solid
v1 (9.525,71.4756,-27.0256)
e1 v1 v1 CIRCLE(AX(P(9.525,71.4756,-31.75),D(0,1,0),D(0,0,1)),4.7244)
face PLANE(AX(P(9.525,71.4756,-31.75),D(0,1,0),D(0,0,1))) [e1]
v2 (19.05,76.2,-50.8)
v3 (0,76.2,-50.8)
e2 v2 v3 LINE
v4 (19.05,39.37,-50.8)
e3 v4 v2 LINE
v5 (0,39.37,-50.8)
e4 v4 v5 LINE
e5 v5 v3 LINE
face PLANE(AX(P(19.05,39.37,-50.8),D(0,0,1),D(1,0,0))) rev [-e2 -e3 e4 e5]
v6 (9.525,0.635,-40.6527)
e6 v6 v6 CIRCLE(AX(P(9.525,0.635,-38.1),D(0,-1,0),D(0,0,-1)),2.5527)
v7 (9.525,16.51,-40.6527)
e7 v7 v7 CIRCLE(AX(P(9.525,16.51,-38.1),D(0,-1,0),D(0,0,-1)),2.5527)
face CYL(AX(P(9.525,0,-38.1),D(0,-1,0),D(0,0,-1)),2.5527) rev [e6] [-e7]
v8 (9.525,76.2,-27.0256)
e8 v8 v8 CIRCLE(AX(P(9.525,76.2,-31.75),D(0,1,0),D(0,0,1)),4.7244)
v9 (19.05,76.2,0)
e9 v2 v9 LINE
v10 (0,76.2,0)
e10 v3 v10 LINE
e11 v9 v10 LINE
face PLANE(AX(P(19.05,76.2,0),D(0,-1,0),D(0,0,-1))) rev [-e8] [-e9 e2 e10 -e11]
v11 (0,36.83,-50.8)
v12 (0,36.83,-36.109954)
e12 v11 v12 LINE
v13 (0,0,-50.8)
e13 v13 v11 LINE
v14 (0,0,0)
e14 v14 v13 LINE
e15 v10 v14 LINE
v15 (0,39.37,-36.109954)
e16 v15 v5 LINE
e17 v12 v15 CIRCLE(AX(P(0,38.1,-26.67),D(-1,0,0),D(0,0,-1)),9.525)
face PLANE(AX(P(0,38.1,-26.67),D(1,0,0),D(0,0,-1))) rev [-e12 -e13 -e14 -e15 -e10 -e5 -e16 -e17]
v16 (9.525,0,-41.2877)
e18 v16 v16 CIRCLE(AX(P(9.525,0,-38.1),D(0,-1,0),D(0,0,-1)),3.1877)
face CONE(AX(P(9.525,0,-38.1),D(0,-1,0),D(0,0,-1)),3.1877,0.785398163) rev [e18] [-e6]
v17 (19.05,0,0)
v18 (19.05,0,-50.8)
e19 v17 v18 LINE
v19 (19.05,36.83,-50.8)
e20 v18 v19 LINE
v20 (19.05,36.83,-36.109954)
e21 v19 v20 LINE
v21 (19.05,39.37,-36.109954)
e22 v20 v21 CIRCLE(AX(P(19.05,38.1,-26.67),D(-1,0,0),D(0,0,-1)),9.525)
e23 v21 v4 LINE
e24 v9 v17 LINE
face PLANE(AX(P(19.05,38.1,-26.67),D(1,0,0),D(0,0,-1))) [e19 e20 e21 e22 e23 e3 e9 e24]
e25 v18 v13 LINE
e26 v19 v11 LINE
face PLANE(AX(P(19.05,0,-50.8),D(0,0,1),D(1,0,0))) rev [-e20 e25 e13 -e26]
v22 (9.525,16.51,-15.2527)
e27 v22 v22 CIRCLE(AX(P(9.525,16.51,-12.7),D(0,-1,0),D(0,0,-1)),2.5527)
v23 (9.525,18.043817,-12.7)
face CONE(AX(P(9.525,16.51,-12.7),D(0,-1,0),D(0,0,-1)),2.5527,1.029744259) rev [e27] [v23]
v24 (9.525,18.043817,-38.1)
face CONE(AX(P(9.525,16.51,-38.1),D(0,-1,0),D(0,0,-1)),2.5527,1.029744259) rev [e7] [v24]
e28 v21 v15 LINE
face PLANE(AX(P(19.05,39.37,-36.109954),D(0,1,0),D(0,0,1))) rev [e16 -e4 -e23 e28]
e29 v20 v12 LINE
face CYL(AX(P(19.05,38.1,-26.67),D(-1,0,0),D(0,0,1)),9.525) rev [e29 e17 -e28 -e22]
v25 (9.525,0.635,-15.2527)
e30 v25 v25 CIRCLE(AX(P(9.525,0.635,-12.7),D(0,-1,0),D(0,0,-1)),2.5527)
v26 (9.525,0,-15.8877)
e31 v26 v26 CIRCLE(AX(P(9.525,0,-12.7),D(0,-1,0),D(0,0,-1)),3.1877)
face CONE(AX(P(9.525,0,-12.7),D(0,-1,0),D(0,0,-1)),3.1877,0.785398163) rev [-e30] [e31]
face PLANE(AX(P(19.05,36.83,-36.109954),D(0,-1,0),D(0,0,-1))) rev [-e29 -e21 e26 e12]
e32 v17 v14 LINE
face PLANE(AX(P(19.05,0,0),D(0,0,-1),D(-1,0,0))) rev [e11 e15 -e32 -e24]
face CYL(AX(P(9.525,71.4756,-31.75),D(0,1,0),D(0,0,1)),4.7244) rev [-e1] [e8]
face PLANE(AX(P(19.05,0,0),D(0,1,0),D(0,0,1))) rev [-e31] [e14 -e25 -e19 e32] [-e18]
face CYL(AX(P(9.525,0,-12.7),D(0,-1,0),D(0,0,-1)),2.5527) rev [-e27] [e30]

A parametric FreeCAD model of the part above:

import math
import FreeCAD as App
import Part
import Sketcher

V = App.Vector
Q = App.Units.Quantity

doc = App.newDocument("Part")
body = doc.addObject("PartDesign::Body", "Body")

# Sketch on YZ plane
sketch1 = body.newObject("Sketcher::SketchObject", "Sketch")
sketch1.AttachmentSupport = (doc.getObject("YZ_Plane"), [""])
sketch1.MapMode = "FlatFace"
sketch1.addGeometry(Part.LineSegment(V(0, 0, 0), V(0, -50.8, 0)), False)
sketch1.addGeometry(Part.LineSegment(V(0, -50.8, 0), V(36.83, -50.8, 0)), False)
sketch1.addGeometry(Part.LineSegment(V(36.83, -50.8, 0), V(36.83, -36.109954, 0)), False)
sketch1.addGeometry(Part.ArcOfCircle(Part.Circle(V(38.1, -26.67, 0), V(0, 0, 1), 9.525), math.radians(-82.337744), math.radians(262.337744)), False)
sketch1.addGeometry(Part.LineSegment(V(39.37, -36.109954, 0), V(39.37, -50.8, 0)), False)
sketch1.addGeometry(Part.LineSegment(V(39.37, -50.8, 0), V(76.2, -50.8, 0)), False)
sketch1.addGeometry(Part.LineSegment(V(76.2, -50.8, 0), V(76.2, 0, 0)), False)
sketch1.addGeometry(Part.LineSegment(V(76.2, 0, 0), V(0, 0, 0)), False)
sketch1.addConstraint(Sketcher.Constraint("Coincident", 0, 2, 1, 1))
sketch1.addConstraint(Sketcher.Constraint("Coincident", 1, 2, 2, 1))
sketch1.addConstraint(Sketcher.Constraint("Coincident", 2, 2, 3, 2))
sketch1.addConstraint(Sketcher.Constraint("Coincident", 3, 1, 4, 1))
sketch1.addConstraint(Sketcher.Constraint("Coincident", 4, 2, 5, 1))
sketch1.addConstraint(Sketcher.Constraint("Coincident", 5, 2, 6, 1))
sketch1.addConstraint(Sketcher.Constraint("Coincident", 6, 2, 7, 1))
sketch1.addConstraint(Sketcher.Constraint("Coincident", 7, 2, 0, 1))
sketch1.addConstraint(Sketcher.Constraint("Vertical", 0))
sketch1.addConstraint(Sketcher.Constraint("Horizontal", 1))
sketch1.addConstraint(Sketcher.Constraint("Vertical", 2))
sketch1.addConstraint(Sketcher.Constraint("Vertical", 4))
sketch1.addConstraint(Sketcher.Constraint("Horizontal", 5))
sketch1.addConstraint(Sketcher.Constraint("Vertical", 6))
sketch1.addConstraint(Sketcher.Constraint("Horizontal", 7))
sketch1.addConstraint(Sketcher.Constraint("Coincident", 7, 2, -1, 1))
sketch1.addConstraint(Sketcher.Constraint("Horizontal", 2, 2, 3, 1))
sketch1.addConstraint(Sketcher.Constraint("Horizontal", 1, 2, 4, 2))
sketch1.addConstraint(Sketcher.Constraint("Equal", 1, 5))
sketch1.addConstraint(Sketcher.Constraint("DistanceX", 7, 2, 7, 1, Q("3 in")))
sketch1.addConstraint(Sketcher.Constraint("DistanceY", 0, 2, 0, 1, Q("2 in")))
sketch1.addConstraint(Sketcher.Constraint("Radius", 3, Q("0.375 in")))
sketch1.addConstraint(Sketcher.Constraint("DistanceX", 1, 1, 1, 2, Q("1.45 in")))
sketch1.addConstraint(Sketcher.Constraint("DistanceY", 3, 3, -1, 1, Q("1.05 in")))
pad1 = body.newObject("PartDesign::Pad", "Pad")
pad1.Profile = sketch1
pad1.Length = Q("0.75 in")

# Sketch on XZ plane
sketch2 = body.newObject("Sketcher::SketchObject", "Sketch001")
sketch2.AttachmentSupport = (doc.getObject("XZ_Plane"), [""])
sketch2.MapMode = "FlatFace"
sketch2.addGeometry(Part.Circle(V(9.525, -12.7, 0), V(0, 0, 1), 2.5527), False)
sketch2.addGeometry(Part.Circle(V(9.525, -38.1, 0), V(0, 0, 1), 2.5527), False)
sketch2.addConstraint(Sketcher.Constraint("Equal", 0, 1))
sketch2.addConstraint(Sketcher.Constraint("Vertical", 0, 3, 1, 3))
sketch2.addConstraint(Sketcher.Constraint("Diameter", 0, Q("0.201 in")))
sketch2.addConstraint(Sketcher.Constraint("DistanceY", 1, 3, 0, 3, Q("1 in")))
sketch2.addConstraint(Sketcher.Constraint("DistanceY", 0, 3, -1, 1, Q("0.5 in")))
sketch2.addConstraint(Sketcher.Constraint("DistanceX", -1, 1, 0, 3, Q("0.375 in")))
doc.recompute()
hole = body.newObject("PartDesign::Hole", "Hole")
hole.Profile = sketch2
hole.ThreadType = "None"
hole.Diameter = Q("0.201 in")
hole.DepthType = "Dimension"
hole.Depth = Q("0.65 in")
hole.DrillPoint = "Angled"
hole.DrillPointAngle = 118
hole.HoleCutType = "Countersink"
hole.HoleCutDiameter = Q("0.251 in")
hole.HoleCutCountersinkAngle = 90

# Sketch on XZ plane
sketch3 = body.newObject("Sketcher::SketchObject", "Sketch002")
sketch3.AttachmentSupport = (doc.getObject("XZ_Plane"), [""])
sketch3.MapMode = "FlatFace"
sketch3.AttachmentOffset = App.Placement(V(0, 0, -3 * 25.4), App.Rotation())
sketch3.addGeometry(Part.Circle(V(9.525, -31.75, 0), V(0, 0, 1), 4.7244), False)
sketch3.addConstraint(Sketcher.Constraint("Diameter", 0, Q("0.372 in")))
sketch3.addConstraint(Sketcher.Constraint("DistanceY", 0, 3, -1, 1, Q("1.25 in")))
sketch3.addConstraint(Sketcher.Constraint("DistanceX", -1, 1, 0, 3, Q("0.375 in")))
pocket1 = body.newObject("PartDesign::Pocket", "Pocket")
pocket1.Profile = sketch3
pocket1.Length = Q("0.186 in")
pocket1.Reversed = True

doc.recompute()
